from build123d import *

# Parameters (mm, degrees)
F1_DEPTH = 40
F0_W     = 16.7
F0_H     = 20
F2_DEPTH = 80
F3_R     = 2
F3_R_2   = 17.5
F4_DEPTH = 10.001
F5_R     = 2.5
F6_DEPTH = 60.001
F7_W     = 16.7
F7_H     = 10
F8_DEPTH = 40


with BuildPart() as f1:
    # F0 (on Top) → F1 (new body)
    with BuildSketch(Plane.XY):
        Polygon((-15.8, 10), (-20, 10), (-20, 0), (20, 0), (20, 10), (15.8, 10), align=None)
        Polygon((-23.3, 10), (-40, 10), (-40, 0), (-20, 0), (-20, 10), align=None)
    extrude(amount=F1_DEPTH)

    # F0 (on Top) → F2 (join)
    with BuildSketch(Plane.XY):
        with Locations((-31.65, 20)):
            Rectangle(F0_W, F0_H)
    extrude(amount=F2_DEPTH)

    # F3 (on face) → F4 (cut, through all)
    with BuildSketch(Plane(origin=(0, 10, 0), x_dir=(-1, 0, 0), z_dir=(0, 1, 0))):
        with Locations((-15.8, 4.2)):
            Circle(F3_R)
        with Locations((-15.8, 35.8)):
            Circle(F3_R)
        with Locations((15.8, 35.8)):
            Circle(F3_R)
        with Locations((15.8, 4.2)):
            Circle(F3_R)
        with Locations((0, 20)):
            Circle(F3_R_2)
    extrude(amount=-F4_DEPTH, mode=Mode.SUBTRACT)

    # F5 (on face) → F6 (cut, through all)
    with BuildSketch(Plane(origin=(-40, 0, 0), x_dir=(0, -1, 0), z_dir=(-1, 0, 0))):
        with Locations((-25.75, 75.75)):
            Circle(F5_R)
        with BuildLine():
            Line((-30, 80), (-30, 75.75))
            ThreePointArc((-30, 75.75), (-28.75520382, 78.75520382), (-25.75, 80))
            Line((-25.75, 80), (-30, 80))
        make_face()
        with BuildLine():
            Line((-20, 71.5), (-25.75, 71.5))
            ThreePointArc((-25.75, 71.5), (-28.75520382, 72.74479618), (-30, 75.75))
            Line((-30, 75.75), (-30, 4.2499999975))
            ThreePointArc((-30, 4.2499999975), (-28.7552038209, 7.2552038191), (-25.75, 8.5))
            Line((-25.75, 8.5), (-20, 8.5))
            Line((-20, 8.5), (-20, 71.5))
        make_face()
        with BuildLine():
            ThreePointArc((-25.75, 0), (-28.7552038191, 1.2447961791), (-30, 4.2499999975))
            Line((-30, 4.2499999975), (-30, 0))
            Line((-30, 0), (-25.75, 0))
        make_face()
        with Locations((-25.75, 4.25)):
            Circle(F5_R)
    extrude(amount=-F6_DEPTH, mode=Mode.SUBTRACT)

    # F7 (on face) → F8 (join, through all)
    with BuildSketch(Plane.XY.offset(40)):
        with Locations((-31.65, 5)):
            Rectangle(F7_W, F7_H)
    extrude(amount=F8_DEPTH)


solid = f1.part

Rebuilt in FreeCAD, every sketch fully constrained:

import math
import FreeCAD as App
import Part
import Sketcher
from FreeCAD import Vector
Q = App.Units.Quantity


def add_polygon(sketch, points):
    """Adds a closed chain of lines whose ends are joined by coincident constraints."""
    first, n = sketch.GeometryCount, len(points)
    for a, b in zip(points, points[1:] + points[:1]):
        sketch.addGeometry(Part.LineSegment(App.Vector(*a, 0), App.Vector(*b, 0)), False)
    for i in range(n):
        sketch.addConstraint(Sketcher.Constraint("Coincident", first + i, 2, first + (i + 1) % n, 1))

doc = App.newDocument("Part")
params = doc.addObject("Spreadsheet::Sheet", "Params")
for row, (alias, value) in enumerate([
    ("sketch1_width", "60 mm"),
    ("sketch1_height", "10 mm"),
    ("pad1_length", "40 mm"),
    ("sketch2_height", "20 mm"),
    ("sketch2_width", "16.7 mm"),
    ("pad2_length", "80 mm"),
    ("sketch3_diameter", "4 mm"),
    ("sketch3_diameter2", "35 mm"),
    ("sketch4_diameter", "5 mm"),
    ("sketch4_height", "63 mm"),
    ("sketch4_radius", "4.25 mm"),
    ("sketch5_height", "10 mm"),
    ("sketch5_width", "16.7 mm"),
    ("pad3_length", "40 mm"),
], start=1):
    params.set(f"A{row}", alias)
    params.set(f"B{row}", "=" + value)
    params.setAlias(f"B{row}", alias)

body = doc.addObject("PartDesign::Body", "Body")

# Sketch on XY plane
sketch1 = body.newObject("Sketcher::SketchObject", "Sketch")
sketch1.AttachmentSupport = (doc.getObject("XY_Plane"), [""])
sketch1.MapMode = "FlatFace"
add_polygon(sketch1, [(20, 0), (20, 10), (-40, 10), (-40, 0)])  # lines 0-3
sketch1.addConstraint(Sketcher.Constraint("Vertical", 0))
sketch1.addConstraint(Sketcher.Constraint("Horizontal", 1))
sketch1.addConstraint(Sketcher.Constraint("Vertical", 2))
sketch1.addConstraint(Sketcher.Constraint("Horizontal", 3))
sketch1.addConstraint(Sketcher.Constraint("PointOnObject", 2, 2, -1))
sketch1.addConstraint(Sketcher.Constraint("DistanceX", 1, 2, 1, 1, Q("60 mm")))
sketch1.addConstraint(Sketcher.Constraint("DistanceY", 0, 1, 0, 2, Q("10 mm")))
sketch1.addConstraint(Sketcher.Constraint("DistanceX", -1, 1, 0, 2, Q("20 mm")))
sketch1.setExpression("Constraints[9]", "Params.sketch1_width")
sketch1.setExpression("Constraints[10]", "Params.sketch1_height")
pad1 = body.newObject("PartDesign::Pad", "Pad")
pad1.Profile = sketch1
pad1.setExpression("Length", "Params.pad1_length")

# Sketch on XY plane
sketch2 = body.newObject("Sketcher::SketchObject", "Sketch001")
sketch2.AttachmentSupport = (doc.getObject("XY_Plane"), [""])
sketch2.MapMode = "FlatFace"
add_polygon(sketch2, [(-40, 30), (-40, 10), (-23.3, 10), (-23.3, 30)])  # lines 0-3
sketch2.addConstraint(Sketcher.Constraint("Vertical", 0))
sketch2.addConstraint(Sketcher.Constraint("Horizontal", 1))
sketch2.addConstraint(Sketcher.Constraint("Vertical", 2))
sketch2.addConstraint(Sketcher.Constraint("Horizontal", 3))
sketch2.addConstraint(Sketcher.Constraint("DistanceY", 0, 2, 0, 1, Q("20 mm")))
sketch2.addConstraint(Sketcher.Constraint("DistanceX", 1, 1, 1, 2, Q("16.7 mm")))
sketch2.addConstraint(Sketcher.Constraint("DistanceX", 0, 2, -1, 1, Q("40 mm")))
sketch2.addConstraint(Sketcher.Constraint("DistanceY", -1, 1, 0, 2, Q("10 mm")))
sketch2.setExpression("Constraints[8]", "Params.sketch2_height")
sketch2.setExpression("Constraints[9]", "Params.sketch2_width")
pad2 = body.newObject("PartDesign::Pad", "Pad001")
pad2.Profile = sketch2
pad2.setExpression("Length", "Params.pad2_length")

# Sketch on XZ plane
sketch3 = body.newObject("Sketcher::SketchObject", "Sketch002")
sketch3.AttachmentSupport = (doc.getObject("XZ_Plane"), [""])
sketch3.MapMode = "FlatFace"
sketch3.AttachmentOffset = App.Placement(Vector(0, 0, -10), App.Rotation())
sketch3.addGeometry(Part.Circle(Vector(15.8, 4.2, 0), Vector(0, 0, 1), 2), False)
sketch3.addGeometry(Part.Circle(Vector(15.8, 35.8, 0), Vector(0, 0, 1), 2), False)
sketch3.addGeometry(Part.Circle(Vector(-15.8, 35.8, 0), Vector(0, 0, 1), 2), False)
sketch3.addGeometry(Part.Circle(Vector(-15.8, 4.2, 0), Vector(0, 0, 1), 2), False)
sketch3.addGeometry(Part.Circle(Vector(0, 20, 0), Vector(0, 0, 1), 17.5), False)
sketch3.addConstraint(Sketcher.Constraint("Equal", 0, 1))
sketch3.addConstraint(Sketcher.Constraint("Equal", 1, 2))
sketch3.addConstraint(Sketcher.Constraint("Equal", 2, 3))
sketch3.addConstraint(Sketcher.Constraint("Symmetric", 1, 3, 2, 3, -2))
sketch3.addConstraint(Sketcher.Constraint("Symmetric", 0, 3, 3, 3, -2))
sketch3.addConstraint(Sketcher.Constraint("PointOnObject", 4, 3, -2))
sketch3.addConstraint(Sketcher.Constraint("Vertical", 0, 3, 1, 3))
sketch3.addConstraint(Sketcher.Constraint("Diameter", 0, Q("4 mm")))
sketch3.addConstraint(Sketcher.Constraint("Diameter", 4, Q("35 mm")))
sketch3.addConstraint(Sketcher.Constraint("DistanceY", -1, 1, 4, 3, Q("20 mm")))
sketch3.addConstraint(Sketcher.Constraint("DistanceX", -1, 1, 0, 3, Q("15.8 mm")))
sketch3.addConstraint(Sketcher.Constraint("DistanceY", -1, 1, 0, 3, Q("4.2 mm")))
sketch3.addConstraint(Sketcher.Constraint("DistanceY", -1, 1, 1, 3, Q("35.8 mm")))
sketch3.setExpression("Constraints[7]", "Params.sketch3_diameter")
sketch3.setExpression("Constraints[8]", "Params.sketch3_diameter2")
pocket1 = body.newObject("PartDesign::Pocket", "Pocket")
pocket1.Profile = sketch3
pocket1.Type = "ThroughAll"
pocket1.Reversed = True

# Sketch on YZ plane
sketch4 = body.newObject("Sketcher::SketchObject", "Sketch003")
sketch4.AttachmentSupport = (doc.getObject("YZ_Plane"), [""])
sketch4.MapMode = "FlatFace"
sketch4.AttachmentOffset = App.Placement(Vector(0, 0, -40), App.Rotation())
sketch4.addGeometry(Part.Circle(Vector(25.75, 75.75, 0), Vector(0, 0, 1), 2.5), False)
sketch4.addGeometry(Part.LineSegment(Vector(30, 80, 0), Vector(30, 75.75, 0)), False)
sketch4.addGeometry(Part.ArcOfCircle(Part.Circle(Vector(25.75, 75.75, 0), Vector(0, 0, 1), 4.25), math.radians(0), math.radians(90)), False)
sketch4.addGeometry(Part.LineSegment(Vector(25.75, 80, 0), Vector(30, 80, 0)), False)
sketch4.addGeometry(Part.LineSegment(Vector(20, 71.5, 0), Vector(25.75, 71.5, 0)), False)
sketch4.addGeometry(Part.ArcOfCircle(Part.Circle(Vector(25.75, 75.75, 0), Vector(0, 0, 1), 4.25), math.radians(-90), math.radians(0)), False)
sketch4.addGeometry(Part.LineSegment(Vector(30, 75.75, 0), Vector(30, 4.25, 0)), False)
sketch4.addGeometry(Part.ArcOfCircle(Part.Circle(Vector(25.75, 4.25, 0), Vector(0, 0, 1), 4.25), math.radians(0), math.radians(90)), False)
sketch4.addGeometry(Part.LineSegment(Vector(25.75, 8.5, 0), Vector(20, 8.5, 0)), False)
sketch4.addGeometry(Part.LineSegment(Vector(20, 8.5, 0), Vector(20, 71.5, 0)), False)
sketch4.addGeometry(Part.ArcOfCircle(Part.Circle(Vector(25.75, 4.25, 0), Vector(0, 0, 1), 4.25), math.radians(-90), math.radians(0)), False)
sketch4.addGeometry(Part.LineSegment(Vector(30, 4.25, 0), Vector(30, 0, 0)), False)
sketch4.addGeometry(Part.LineSegment(Vector(30, 0, 0), Vector(25.75, 0, 0)), False)
sketch4.addGeometry(Part.Circle(Vector(25.75, 4.25, 0), Vector(0, 0, 1), 2.5), False)
sketch4.addConstraint(Sketcher.Constraint("Tangent", 1, 2, 2, 1))
sketch4.addConstraint(Sketcher.Constraint("Tangent", 2, 2, 3, 1))
sketch4.addConstraint(Sketcher.Constraint("Coincident", 3, 2, 1, 1))
sketch4.addConstraint(Sketcher.Constraint("Tangent", 4, 2, 5, 1))
sketch4.addConstraint(Sketcher.Constraint("Tangent", 5, 2, 6, 1))
sketch4.addConstraint(Sketcher.Constraint("Tangent", 6, 2, 7, 1))
sketch4.addConstraint(Sketcher.Constraint("Tangent", 7, 2, 8, 1))
sketch4.addConstraint(Sketcher.Constraint("Coincident", 8, 2, 9, 1))
sketch4.addConstraint(Sketcher.Constraint("Coincident", 9, 2, 4, 1))
sketch4.addConstraint(Sketcher.Constraint("Tangent", 10, 2, 11, 1))
sketch4.addConstraint(Sketcher.Constraint("Coincident", 11, 2, 12, 1))
sketch4.addConstraint(Sketcher.Constraint("Tangent", 12, 2, 10, 1))
sketch4.addConstraint(Sketcher.Constraint("Vertical", 1))
sketch4.addConstraint(Sketcher.Constraint("Horizontal", 3))
sketch4.addConstraint(Sketcher.Constraint("Horizontal", 4))
sketch4.addConstraint(Sketcher.Constraint("Vertical", 6))
sketch4.addConstraint(Sketcher.Constraint("Horizontal", 8))
sketch4.addConstraint(Sketcher.Constraint("Vertical", 9))
sketch4.addConstraint(Sketcher.Constraint("Vertical", 11))
sketch4.addConstraint(Sketcher.Constraint("Horizontal", 12))
sketch4.addConstraint(Sketcher.Constraint("Coincident", 2, 3, 0, 3))
sketch4.addConstraint(Sketcher.Constraint("Coincident", 5, 3, 0, 3))
sketch4.addConstraint(Sketcher.Constraint("Coincident", 10, 3, 7, 3))
sketch4.addConstraint(Sketcher.Constraint("Coincident", 13, 3, 7, 3))
sketch4.addConstraint(Sketcher.Constraint("Equal", 2, 5))
sketch4.addConstraint(Sketcher.Constraint("Equal", 5, 7))
sketch4.addConstraint(Sketcher.Constraint("Equal", 7, 10))
sketch4.addConstraint(Sketcher.Constraint("Equal", 0, 13))
sketch4.addConstraint(Sketcher.Constraint("PointOnObject", 11, 2, -1))
sketch4.addConstraint(Sketcher.Constraint("Diameter", 0, Q("5 mm")))
sketch4.addConstraint(Sketcher.Constraint("DistanceY", 9, 1, 9, 2, Q("63 mm")))
sketch4.addConstraint(Sketcher.Constraint("Radius", 2, Q("4.25 mm")))
sketch4.addConstraint(Sketcher.Constraint("DistanceX", -1, 1, 1, 2, Q("30 mm")))
sketch4.addConstraint(Sketcher.Constraint("DistanceX", -1, 1, 8, 2, Q("20 mm")))
sketch4.setExpression("Constraints[29]", "Params.sketch4_diameter")
sketch4.setExpression("Constraints[30]", "Params.sketch4_height")
sketch4.setExpression("Constraints[31]", "Params.sketch4_radius")
pocket2 = body.newObject("PartDesign::Pocket", "Pocket001")
pocket2.Profile = sketch4
pocket2.Type = "ThroughAll"
pocket2.Reversed = True

# Sketch on XY plane
sketch5 = body.newObject("Sketcher::SketchObject", "Sketch004")
sketch5.AttachmentSupport = (doc.getObject("XY_Plane"), [""])
sketch5.MapMode = "FlatFace"
sketch5.AttachmentOffset = App.Placement(Vector(0, 0, 40), App.Rotation())
add_polygon(sketch5, [(-40, 10), (-40, 0), (-23.3, 0), (-23.3, 10)])  # lines 0-3
sketch5.addConstraint(Sketcher.Constraint("Vertical", 0))
sketch5.addConstraint(Sketcher.Constraint("Horizontal", 1))
sketch5.addConstraint(Sketcher.Constraint("Vertical", 2))
sketch5.addConstraint(Sketcher.Constraint("Horizontal", 3))
sketch5.addConstraint(Sketcher.Constraint("PointOnObject", 0, 2, -1))
sketch5.addConstraint(Sketcher.Constraint("DistanceY", 0, 2, 0, 1, Q("10 mm")))
sketch5.addConstraint(Sketcher.Constraint("DistanceX", 1, 1, 1, 2, Q("16.7 mm")))
sketch5.addConstraint(Sketcher.Constraint("DistanceX", 0, 2, -1, 1, Q("40 mm")))
sketch5.setExpression("Constraints[9]", "Params.sketch5_height")
sketch5.setExpression("Constraints[10]", "Params.sketch5_width")
pad3 = body.newObject("PartDesign::Pad", "Pad002")
pad3.Profile = sketch5
pad3.setExpression("Length", "Params.pad3_length")

doc.recompute()
